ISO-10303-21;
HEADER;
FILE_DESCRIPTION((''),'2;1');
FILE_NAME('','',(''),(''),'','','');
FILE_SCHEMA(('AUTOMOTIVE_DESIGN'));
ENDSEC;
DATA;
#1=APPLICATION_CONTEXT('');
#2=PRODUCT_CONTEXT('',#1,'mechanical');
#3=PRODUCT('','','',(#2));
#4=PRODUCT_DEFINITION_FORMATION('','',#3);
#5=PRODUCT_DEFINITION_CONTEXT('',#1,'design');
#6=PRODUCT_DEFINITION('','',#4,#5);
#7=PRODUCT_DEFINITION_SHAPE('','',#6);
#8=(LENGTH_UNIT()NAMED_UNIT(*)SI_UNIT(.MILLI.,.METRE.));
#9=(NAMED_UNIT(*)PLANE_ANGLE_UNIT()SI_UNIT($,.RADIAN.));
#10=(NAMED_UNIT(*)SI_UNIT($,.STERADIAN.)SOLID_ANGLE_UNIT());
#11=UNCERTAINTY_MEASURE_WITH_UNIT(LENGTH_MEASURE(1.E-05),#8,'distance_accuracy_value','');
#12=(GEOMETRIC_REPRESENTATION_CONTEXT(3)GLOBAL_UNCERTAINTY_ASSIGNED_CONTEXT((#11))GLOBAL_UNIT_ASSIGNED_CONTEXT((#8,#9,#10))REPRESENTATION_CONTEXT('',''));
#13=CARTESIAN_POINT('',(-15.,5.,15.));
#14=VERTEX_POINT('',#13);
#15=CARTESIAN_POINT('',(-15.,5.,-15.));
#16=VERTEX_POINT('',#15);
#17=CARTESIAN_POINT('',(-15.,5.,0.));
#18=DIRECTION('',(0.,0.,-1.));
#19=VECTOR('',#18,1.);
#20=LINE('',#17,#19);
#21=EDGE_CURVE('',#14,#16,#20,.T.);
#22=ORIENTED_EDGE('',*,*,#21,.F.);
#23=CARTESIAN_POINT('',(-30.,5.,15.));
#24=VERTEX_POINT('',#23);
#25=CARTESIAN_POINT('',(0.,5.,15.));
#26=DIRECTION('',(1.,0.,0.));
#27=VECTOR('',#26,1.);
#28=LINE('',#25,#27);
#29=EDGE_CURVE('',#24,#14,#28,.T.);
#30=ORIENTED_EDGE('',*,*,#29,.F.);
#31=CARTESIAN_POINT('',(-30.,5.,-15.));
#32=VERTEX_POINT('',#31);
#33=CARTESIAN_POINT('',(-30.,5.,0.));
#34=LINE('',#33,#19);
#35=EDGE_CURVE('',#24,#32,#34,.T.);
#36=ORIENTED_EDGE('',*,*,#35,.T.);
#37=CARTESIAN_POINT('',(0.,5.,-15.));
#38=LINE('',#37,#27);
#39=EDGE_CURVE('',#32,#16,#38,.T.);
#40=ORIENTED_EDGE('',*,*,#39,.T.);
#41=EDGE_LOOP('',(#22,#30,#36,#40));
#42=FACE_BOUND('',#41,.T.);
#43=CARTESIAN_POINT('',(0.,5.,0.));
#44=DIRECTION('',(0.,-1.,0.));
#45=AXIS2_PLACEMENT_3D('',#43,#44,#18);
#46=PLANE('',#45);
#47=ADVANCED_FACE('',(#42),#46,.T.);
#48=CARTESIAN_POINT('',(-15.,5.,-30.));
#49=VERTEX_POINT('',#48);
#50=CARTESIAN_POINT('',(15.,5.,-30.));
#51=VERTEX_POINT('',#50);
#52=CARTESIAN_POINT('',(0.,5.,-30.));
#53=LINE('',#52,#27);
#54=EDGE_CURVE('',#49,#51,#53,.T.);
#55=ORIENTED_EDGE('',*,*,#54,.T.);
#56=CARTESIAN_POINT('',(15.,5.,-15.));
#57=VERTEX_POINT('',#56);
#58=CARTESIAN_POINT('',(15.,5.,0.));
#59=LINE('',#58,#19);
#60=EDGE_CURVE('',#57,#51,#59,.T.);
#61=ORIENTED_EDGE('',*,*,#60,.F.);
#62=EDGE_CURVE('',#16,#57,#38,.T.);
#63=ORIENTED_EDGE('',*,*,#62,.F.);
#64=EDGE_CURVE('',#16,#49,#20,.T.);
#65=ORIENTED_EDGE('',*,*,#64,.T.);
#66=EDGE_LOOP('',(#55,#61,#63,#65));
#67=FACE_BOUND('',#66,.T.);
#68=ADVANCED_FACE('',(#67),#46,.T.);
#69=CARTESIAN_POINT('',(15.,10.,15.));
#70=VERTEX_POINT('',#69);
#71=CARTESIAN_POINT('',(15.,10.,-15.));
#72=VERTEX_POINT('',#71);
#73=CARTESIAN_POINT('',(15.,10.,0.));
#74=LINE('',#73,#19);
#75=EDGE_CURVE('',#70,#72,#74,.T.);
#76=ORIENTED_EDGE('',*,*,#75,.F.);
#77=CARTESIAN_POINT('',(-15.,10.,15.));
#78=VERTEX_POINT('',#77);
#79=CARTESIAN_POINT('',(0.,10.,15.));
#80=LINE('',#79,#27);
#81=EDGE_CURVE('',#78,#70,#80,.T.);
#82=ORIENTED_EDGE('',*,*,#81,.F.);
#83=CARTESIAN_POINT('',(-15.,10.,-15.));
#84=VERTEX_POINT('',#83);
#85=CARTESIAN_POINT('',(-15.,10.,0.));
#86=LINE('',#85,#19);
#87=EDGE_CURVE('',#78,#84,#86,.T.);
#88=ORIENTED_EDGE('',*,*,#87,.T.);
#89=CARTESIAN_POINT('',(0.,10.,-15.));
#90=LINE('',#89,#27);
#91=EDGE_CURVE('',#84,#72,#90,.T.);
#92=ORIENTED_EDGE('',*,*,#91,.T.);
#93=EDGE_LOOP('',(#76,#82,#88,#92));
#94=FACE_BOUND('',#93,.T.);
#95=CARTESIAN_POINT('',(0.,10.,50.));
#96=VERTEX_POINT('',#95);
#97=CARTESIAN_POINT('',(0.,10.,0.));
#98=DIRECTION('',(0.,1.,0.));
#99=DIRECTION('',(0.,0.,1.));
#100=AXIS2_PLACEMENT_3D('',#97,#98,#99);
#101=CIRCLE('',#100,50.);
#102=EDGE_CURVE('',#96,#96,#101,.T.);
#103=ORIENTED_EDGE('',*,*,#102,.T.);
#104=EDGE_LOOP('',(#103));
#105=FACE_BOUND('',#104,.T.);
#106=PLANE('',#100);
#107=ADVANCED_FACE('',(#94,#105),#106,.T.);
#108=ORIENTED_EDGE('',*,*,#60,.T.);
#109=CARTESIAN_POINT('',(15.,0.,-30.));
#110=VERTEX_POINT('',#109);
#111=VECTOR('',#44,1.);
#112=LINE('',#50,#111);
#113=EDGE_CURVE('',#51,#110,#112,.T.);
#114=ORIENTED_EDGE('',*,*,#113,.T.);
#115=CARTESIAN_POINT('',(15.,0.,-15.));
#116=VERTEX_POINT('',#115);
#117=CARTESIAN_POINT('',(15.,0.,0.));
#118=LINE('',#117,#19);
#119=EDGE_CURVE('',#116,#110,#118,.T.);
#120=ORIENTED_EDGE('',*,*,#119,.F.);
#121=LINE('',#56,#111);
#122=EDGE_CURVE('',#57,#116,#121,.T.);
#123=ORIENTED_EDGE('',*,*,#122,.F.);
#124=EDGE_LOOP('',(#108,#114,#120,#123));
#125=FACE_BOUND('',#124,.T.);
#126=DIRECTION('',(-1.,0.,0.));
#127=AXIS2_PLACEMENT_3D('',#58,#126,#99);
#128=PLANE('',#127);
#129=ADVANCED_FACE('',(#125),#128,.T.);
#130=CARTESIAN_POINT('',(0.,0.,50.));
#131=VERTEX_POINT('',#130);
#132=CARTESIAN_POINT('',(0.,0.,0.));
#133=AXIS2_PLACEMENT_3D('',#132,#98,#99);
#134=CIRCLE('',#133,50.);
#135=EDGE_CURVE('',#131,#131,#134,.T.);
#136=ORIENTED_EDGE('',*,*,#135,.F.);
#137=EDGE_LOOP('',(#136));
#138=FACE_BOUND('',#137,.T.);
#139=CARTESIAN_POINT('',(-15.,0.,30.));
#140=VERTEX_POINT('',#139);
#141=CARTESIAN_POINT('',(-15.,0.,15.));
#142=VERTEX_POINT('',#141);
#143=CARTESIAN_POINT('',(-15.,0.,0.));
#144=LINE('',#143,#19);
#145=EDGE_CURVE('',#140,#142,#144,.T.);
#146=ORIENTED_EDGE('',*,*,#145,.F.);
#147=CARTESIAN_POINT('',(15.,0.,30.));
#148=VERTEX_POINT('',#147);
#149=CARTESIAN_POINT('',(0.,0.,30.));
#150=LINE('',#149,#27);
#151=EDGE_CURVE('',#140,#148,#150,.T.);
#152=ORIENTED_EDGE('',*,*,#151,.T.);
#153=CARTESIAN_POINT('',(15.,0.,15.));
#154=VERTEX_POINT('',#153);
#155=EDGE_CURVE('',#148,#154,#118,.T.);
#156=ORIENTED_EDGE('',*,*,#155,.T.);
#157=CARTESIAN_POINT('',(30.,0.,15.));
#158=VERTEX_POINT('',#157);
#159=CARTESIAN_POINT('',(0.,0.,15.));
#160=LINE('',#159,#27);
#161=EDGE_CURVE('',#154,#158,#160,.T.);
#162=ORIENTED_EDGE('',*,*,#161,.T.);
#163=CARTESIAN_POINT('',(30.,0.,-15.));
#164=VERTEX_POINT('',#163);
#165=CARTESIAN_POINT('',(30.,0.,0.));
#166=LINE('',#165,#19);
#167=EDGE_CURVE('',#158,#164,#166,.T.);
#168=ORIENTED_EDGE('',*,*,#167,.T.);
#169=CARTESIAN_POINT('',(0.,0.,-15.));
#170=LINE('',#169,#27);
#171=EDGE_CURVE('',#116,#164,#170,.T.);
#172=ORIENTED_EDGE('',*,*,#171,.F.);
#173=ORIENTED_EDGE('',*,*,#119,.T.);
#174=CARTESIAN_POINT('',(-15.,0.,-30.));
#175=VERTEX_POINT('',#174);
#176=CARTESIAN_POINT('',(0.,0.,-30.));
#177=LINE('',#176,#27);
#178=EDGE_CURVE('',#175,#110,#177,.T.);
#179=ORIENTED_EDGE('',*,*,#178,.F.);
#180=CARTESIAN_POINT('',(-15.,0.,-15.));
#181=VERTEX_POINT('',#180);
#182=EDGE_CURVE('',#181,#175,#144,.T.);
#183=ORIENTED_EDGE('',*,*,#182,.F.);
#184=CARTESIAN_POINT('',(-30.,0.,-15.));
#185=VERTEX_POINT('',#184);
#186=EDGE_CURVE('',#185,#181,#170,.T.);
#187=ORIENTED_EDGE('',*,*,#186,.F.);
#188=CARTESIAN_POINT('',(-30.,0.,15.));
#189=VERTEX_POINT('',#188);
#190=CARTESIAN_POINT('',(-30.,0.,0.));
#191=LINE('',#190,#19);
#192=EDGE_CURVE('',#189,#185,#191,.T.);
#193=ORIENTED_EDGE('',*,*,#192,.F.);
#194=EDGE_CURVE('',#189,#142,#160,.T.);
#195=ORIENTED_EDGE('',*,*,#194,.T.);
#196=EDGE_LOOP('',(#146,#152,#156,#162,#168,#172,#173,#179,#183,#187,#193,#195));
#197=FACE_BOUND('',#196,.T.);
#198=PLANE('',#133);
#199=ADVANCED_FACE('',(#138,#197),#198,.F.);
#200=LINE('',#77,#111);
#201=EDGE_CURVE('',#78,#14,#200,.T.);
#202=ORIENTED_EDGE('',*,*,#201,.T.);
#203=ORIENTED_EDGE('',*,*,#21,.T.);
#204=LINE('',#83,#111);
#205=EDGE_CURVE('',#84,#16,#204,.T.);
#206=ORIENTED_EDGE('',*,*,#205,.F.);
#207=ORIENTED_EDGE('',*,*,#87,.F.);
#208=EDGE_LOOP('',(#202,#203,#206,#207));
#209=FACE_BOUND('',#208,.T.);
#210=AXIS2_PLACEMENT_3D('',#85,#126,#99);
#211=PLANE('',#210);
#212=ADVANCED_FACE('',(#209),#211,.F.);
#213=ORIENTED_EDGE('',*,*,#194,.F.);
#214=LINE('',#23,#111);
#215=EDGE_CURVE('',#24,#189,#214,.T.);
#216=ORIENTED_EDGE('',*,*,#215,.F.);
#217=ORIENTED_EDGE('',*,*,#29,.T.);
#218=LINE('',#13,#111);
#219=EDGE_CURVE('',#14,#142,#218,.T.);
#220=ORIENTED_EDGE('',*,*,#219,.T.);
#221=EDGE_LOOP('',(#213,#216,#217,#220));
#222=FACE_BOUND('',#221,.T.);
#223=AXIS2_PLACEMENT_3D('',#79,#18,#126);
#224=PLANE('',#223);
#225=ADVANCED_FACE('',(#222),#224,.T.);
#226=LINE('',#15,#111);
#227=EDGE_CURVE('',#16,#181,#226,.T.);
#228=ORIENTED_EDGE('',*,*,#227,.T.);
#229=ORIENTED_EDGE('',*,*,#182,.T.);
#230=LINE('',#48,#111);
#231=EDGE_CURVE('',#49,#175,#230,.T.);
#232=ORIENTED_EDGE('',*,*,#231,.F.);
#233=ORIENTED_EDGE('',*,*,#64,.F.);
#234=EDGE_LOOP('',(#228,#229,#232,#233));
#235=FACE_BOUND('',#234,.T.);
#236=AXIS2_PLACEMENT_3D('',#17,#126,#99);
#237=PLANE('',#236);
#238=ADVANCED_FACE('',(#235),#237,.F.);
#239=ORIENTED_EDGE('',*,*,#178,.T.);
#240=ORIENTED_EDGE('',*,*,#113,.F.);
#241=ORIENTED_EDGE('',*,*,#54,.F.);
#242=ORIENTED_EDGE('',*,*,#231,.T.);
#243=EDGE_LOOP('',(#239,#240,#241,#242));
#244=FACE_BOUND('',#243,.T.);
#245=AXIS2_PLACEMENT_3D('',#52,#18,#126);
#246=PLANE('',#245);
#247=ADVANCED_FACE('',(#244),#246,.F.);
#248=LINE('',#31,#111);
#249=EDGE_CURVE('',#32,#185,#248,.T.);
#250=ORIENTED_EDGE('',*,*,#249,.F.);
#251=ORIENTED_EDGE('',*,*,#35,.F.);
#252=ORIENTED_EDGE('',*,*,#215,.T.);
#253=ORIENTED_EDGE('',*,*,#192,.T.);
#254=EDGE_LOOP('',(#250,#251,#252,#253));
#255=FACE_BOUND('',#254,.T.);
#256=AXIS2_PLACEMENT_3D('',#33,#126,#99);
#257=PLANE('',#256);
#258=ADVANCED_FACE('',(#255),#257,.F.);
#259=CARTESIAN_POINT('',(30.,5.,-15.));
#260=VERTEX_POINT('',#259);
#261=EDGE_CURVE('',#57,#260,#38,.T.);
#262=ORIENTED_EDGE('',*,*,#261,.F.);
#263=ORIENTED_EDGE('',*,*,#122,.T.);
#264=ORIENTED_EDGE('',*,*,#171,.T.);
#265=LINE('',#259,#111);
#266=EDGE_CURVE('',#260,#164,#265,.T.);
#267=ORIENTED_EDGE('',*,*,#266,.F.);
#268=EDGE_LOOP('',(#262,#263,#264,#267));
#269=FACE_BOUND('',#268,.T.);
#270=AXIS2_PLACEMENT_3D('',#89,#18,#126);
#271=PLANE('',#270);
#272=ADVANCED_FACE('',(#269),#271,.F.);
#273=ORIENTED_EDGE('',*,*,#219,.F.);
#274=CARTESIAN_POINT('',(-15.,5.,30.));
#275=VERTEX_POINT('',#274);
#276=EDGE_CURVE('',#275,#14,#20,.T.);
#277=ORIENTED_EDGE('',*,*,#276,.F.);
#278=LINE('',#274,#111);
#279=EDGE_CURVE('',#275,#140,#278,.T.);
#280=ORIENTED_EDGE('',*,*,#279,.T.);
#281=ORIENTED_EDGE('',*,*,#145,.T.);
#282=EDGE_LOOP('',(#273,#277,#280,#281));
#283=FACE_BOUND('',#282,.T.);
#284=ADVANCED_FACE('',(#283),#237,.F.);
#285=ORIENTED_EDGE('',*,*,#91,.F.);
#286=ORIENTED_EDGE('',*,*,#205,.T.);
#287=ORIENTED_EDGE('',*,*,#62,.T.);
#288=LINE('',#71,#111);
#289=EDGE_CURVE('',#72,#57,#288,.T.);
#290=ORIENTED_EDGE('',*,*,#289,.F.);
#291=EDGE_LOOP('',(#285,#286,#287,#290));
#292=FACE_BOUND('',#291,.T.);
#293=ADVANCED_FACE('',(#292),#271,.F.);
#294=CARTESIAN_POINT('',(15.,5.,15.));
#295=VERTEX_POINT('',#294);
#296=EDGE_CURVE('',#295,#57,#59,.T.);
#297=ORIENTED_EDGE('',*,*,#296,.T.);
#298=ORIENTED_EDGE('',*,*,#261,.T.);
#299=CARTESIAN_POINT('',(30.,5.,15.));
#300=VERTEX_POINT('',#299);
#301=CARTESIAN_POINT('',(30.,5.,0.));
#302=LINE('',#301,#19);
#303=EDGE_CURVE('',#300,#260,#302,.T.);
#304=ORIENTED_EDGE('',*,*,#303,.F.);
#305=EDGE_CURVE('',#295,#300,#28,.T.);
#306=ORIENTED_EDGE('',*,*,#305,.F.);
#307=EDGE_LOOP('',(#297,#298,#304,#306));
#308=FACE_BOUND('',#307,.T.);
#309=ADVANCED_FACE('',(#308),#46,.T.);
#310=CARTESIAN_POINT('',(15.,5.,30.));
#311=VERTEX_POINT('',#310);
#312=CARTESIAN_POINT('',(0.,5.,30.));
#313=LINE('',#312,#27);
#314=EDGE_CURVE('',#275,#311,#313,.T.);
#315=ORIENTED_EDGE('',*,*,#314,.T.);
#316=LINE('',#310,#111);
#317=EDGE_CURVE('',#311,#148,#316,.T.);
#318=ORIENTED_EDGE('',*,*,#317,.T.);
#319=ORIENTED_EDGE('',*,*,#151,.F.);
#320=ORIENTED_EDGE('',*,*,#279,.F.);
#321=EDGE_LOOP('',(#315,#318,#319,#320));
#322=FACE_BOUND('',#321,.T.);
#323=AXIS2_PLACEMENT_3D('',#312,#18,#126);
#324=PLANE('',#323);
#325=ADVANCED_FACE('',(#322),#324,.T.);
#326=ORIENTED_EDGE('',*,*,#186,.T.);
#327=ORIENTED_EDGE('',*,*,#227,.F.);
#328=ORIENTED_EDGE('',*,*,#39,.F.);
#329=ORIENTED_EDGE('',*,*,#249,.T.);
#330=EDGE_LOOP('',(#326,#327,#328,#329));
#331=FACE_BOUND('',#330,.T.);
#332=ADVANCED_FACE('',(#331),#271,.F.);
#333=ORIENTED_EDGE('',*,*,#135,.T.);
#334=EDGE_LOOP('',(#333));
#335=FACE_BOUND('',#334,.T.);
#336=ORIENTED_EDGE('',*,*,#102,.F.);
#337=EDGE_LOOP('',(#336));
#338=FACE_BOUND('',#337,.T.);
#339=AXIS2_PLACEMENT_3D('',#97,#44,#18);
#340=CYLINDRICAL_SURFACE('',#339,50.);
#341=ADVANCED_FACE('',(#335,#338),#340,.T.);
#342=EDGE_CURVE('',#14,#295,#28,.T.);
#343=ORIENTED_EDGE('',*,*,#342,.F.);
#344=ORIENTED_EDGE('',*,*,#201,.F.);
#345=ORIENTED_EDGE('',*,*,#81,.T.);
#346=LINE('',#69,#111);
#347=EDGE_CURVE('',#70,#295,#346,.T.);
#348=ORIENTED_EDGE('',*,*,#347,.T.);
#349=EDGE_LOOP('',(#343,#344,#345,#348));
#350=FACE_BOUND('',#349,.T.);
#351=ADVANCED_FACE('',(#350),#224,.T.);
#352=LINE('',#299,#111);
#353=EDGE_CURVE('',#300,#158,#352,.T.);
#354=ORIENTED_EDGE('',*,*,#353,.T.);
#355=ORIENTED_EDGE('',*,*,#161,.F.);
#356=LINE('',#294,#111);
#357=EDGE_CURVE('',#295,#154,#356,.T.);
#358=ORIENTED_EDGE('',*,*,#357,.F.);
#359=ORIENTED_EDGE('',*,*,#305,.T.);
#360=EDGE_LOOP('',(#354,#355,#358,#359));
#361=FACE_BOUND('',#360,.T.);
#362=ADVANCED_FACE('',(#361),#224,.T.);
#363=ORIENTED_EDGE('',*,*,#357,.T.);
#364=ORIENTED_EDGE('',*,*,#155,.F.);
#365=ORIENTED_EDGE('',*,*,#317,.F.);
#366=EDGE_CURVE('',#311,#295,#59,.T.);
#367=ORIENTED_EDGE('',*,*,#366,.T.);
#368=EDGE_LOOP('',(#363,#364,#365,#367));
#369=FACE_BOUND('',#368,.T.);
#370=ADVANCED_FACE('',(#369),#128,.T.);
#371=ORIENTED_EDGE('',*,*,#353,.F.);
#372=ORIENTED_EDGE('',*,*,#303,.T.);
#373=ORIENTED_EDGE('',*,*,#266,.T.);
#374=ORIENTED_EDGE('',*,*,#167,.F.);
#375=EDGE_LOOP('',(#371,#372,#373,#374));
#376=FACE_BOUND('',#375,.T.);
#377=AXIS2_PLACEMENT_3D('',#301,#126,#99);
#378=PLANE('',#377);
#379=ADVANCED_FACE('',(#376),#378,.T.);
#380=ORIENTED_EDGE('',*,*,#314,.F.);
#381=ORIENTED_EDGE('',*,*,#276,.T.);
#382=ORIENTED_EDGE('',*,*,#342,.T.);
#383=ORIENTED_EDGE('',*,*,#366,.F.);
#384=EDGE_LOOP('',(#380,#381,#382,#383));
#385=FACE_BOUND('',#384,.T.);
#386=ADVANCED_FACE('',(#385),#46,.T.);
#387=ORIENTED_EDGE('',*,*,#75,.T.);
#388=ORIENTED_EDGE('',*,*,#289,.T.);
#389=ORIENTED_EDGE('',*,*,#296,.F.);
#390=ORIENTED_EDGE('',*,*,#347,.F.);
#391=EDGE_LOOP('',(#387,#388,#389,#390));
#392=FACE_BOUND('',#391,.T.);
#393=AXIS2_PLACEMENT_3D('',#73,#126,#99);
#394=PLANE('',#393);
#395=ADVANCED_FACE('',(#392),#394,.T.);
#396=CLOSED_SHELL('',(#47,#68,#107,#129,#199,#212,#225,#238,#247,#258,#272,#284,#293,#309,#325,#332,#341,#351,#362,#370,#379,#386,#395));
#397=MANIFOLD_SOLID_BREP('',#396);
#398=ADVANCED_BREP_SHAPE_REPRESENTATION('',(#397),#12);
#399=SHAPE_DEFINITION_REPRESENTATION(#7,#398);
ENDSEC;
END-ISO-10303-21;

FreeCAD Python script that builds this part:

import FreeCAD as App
import Part
import Sketcher

V = App.Vector
Q = App.Units.Quantity


def add_polygon(sketch, points):
    """Adds a closed chain of lines whose ends are joined by coincident constraints."""
    first, n = sketch.GeometryCount, len(points)
    for a, b in zip(points, points[1:] + points[:1]):
        sketch.addGeometry(Part.LineSegment(App.Vector(*a, 0), App.Vector(*b, 0)), False)
    for i in range(n):
        sketch.addConstraint(Sketcher.Constraint("Coincident", first + i, 2, first + (i + 1) % n, 1))

doc = App.newDocument("Part")
params = doc.addObject("Spreadsheet::Sheet", "Params")
for row, (alias, value) in enumerate([
    ("sketch1_diameter", "100 mm"),
    ("pad1_length", "10 mm"),
    ("sketch2_width", "30 mm"),
    ("sketch3_width", "15 mm"),
    ("sketch3_width2", "30 mm"),
    ("pocket2_length", "5 mm"),
], start=1):
    params.set(f"A{row}", alias)
    params.set(f"B{row}", "=" + value)
    params.setAlias(f"B{row}", alias)

body = doc.addObject("PartDesign::Body", "Body")

sketch1 = doc.addObject("Sketcher::SketchObject", "Sketch")
body.addObject(sketch1)
sketch1.AttachmentSupport = (doc.XZ_Plane, [""])
sketch1.MapMode = "FlatFace"
sketch1.addGeometry(Part.Circle(V(0, 0, 0), V(0, 0, 1), 50), False)
sketch1.addConstraint(Sketcher.Constraint("Coincident", 0, 3, -1, 1))
sketch1.addConstraint(Sketcher.Constraint("Diameter", 0, Q("100 mm")))
sketch1.setExpression("Constraints[1]", "Params.sketch1_diameter")
pad1 = doc.addObject("PartDesign::Pad", "Pad")
body.addObject(pad1)
pad1.Profile = sketch1
pad1.setExpression("Length", "Params.pad1_length")
pad1.Reversed = True

sketch2 = doc.addObject("Sketcher::SketchObject", "Sketch001")
body.addObject(sketch2)
sketch2.AttachmentSupport = (doc.XZ_Plane, [""])
sketch2.MapMode = "FlatFace"
add_polygon(sketch2, [(-15, 15), (-15, -15), (15, -15), (15, 15)])
sketch2.addConstraint(Sketcher.Constraint("Vertical", 0))
sketch2.addConstraint(Sketcher.Constraint("Horizontal", 1))
sketch2.addConstraint(Sketcher.Constraint("Vertical", 2))
sketch2.addConstraint(Sketcher.Constraint("Horizontal", 3))
sketch2.addConstraint(Sketcher.Constraint("Symmetric", 0, 2, 2, 2, -1, 1))
sketch2.addConstraint(Sketcher.Constraint("Equal", 3, 0))
sketch2.addConstraint(Sketcher.Constraint("DistanceX", 1, 1, 1, 2, Q("30 mm")))
sketch2.setExpression("Constraints[10]", "Params.sketch2_width")
pocket1 = doc.addObject("PartDesign::Pocket", "Pocket")
body.addObject(pocket1)
pocket1.Profile = sketch2
pocket1.Type = "ThroughAll"

sketch3 = doc.addObject("Sketcher::SketchObject", "Sketch002")
body.addObject(sketch3)
sketch3.AttachmentSupport = (doc.XZ_Plane, [""])
sketch3.MapMode = "FlatFace"
add_polygon(sketch3, [(-30, 15), (-30, -15), (-15, -15), (-15, 15)])
add_polygon(sketch3, [(-15, -15), (-15, -30), (15, -30), (15, -15)])
add_polygon(sketch3, [(15, 15), (15, -15), (30, -15), (30, 15)])
add_polygon(sketch3, [(-15, 30), (-15, 15), (15, 15), (15, 30)])
sketch3.addConstraint(Sketcher.Constraint("Vertical", 0))
sketch3.addConstraint(Sketcher.Constraint("Horizontal", 1))
sketch3.addConstraint(Sketcher.Constraint("Vertical", 2))
sketch3.addConstraint(Sketcher.Constraint("Horizontal", 3))
sketch3.addConstraint(Sketcher.Constraint("Vertical", 4))
sketch3.addConstraint(Sketcher.Constraint("Horizontal", 5))
sketch3.addConstraint(Sketcher.Constraint("Vertical", 6))
sketch3.addConstraint(Sketcher.Constraint("Horizontal", 7))
sketch3.addConstraint(Sketcher.Constraint("Vertical", 8))
sketch3.addConstraint(Sketcher.Constraint("Horizontal", 9))
sketch3.addConstraint(Sketcher.Constraint("Vertical", 10))
sketch3.addConstraint(Sketcher.Constraint("Horizontal", 11))
sketch3.addConstraint(Sketcher.Constraint("Vertical", 12))
sketch3.addConstraint(Sketcher.Constraint("Horizontal", 13))
sketch3.addConstraint(Sketcher.Constraint("Vertical", 14))
sketch3.addConstraint(Sketcher.Constraint("Horizontal", 15))
sketch3.addConstraint(Sketcher.Constraint("Coincident", 7, 2, 1, 2))
sketch3.addConstraint(Sketcher.Constraint("Coincident", 8, 2, 6, 2))
sketch3.addConstraint(Sketcher.Constraint("Coincident", 12, 2, 2, 2))
sketch3.addConstraint(Sketcher.Constraint("Coincident", 13, 2, 11, 2))
sketch3.addConstraint(Sketcher.Constraint("Symmetric", 2, 2, 6, 2, -1, 1))
sketch3.addConstraint(Sketcher.Constraint("Equal", 3, 9))
sketch3.addConstraint(Sketcher.Constraint("Equal", 15, 0))
sketch3.addConstraint(Sketcher.Constraint("Equal", 11, 4))
sketch3.addConstraint(Sketcher.Constraint("Equal", 6, 12))
sketch3.addConstraint(Sketcher.Constraint("DistanceX", 1, 1, 1, 2, Q("15 mm")))
sketch3.addConstraint(Sketcher.Constraint("DistanceX", 5, 1, 5, 2, Q("30 mm")))
sketch3.setExpression("Constraints[41]", "Params.sketch3_width")
sketch3.setExpression("Constraints[42]", "Params.sketch3_width2")
pocket2 = doc.addObject("PartDesign::Pocket", "Pocket001")
body.addObject(pocket2)
pocket2.Profile = sketch3
pocket2.setExpression("Length", "Params.pocket2_length")

doc.recompute()
